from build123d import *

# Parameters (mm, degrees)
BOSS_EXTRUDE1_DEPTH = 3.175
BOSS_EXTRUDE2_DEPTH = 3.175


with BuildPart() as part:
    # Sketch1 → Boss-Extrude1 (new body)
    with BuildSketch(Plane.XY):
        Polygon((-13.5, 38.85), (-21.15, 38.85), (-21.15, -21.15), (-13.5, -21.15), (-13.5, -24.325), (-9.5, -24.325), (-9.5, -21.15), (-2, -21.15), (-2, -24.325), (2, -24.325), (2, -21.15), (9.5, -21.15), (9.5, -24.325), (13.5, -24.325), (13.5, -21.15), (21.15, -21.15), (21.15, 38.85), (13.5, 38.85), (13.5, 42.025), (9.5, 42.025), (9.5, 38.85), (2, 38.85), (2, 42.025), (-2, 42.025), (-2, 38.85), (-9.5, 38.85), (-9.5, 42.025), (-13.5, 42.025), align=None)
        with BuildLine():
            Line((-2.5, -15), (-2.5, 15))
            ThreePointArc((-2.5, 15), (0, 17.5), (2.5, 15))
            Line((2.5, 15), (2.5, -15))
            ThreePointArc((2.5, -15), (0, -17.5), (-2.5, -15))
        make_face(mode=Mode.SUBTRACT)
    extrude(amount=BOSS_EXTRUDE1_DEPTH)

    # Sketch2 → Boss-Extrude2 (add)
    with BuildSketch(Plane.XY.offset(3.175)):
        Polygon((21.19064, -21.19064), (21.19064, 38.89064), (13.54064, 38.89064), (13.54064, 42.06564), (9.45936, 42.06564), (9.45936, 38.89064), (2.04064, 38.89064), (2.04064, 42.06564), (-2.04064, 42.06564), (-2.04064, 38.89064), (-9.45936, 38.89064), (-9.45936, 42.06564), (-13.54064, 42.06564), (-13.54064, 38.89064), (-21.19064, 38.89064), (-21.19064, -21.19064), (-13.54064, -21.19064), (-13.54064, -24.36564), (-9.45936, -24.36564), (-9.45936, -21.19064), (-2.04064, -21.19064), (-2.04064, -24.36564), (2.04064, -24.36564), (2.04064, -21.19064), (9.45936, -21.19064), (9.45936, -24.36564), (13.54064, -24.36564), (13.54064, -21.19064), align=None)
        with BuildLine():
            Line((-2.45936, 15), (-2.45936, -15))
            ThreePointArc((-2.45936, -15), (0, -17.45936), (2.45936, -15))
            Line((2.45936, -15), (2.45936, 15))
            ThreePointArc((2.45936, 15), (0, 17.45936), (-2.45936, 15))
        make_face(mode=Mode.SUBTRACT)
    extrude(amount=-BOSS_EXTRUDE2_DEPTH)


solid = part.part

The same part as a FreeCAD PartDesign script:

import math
import FreeCAD as App
import Part
import Sketcher

V = App.Vector

doc = App.newDocument("Part")
body = doc.addObject("PartDesign::Body", "Body")

# Sketch on XY plane
sketch1 = body.newObject("Sketcher::SketchObject", "Sketch")
sketch1.AttachmentSupport = (doc.getObject("XY_Plane"), [""])
sketch1.MapMode = "FlatFace"
sketch1.addGeometry(Part.LineSegment(V(-13.5, 38.85, 0), V(-21.15, 38.85, 0)), False)
sketch1.addGeometry(Part.LineSegment(V(-21.15, 38.85, 0), V(-21.15, -21.15, 0)), False)
sketch1.addGeometry(Part.LineSegment(V(-21.15, -21.15, 0), V(-13.5, -21.15, 0)), False)
sketch1.addGeometry(Part.LineSegment(V(-13.5, -21.15, 0), V(-13.5, -24.325, 0)), False)
sketch1.addGeometry(Part.LineSegment(V(-13.5, -24.325, 0), V(-9.5, -24.325, 0)), False)
sketch1.addGeometry(Part.LineSegment(V(-9.5, -24.325, 0), V(-9.5, -21.15, 0)), False)
sketch1.addGeometry(Part.LineSegment(V(-9.5, -21.15, 0), V(-2, -21.15, 0)), False)
sketch1.addGeometry(Part.LineSegment(V(-2, -21.15, 0), V(-2, -24.325, 0)), False)
sketch1.addGeometry(Part.LineSegment(V(-2, -24.325, 0), V(2, -24.325, 0)), False)
sketch1.addGeometry(Part.LineSegment(V(2, -24.325, 0), V(2, -21.15, 0)), False)
sketch1.addGeometry(Part.LineSegment(V(2, -21.15, 0), V(9.5, -21.15, 0)), False)
sketch1.addGeometry(Part.LineSegment(V(9.5, -21.15, 0), V(9.5, -24.325, 0)), False)
sketch1.addGeometry(Part.LineSegment(V(9.5, -24.325, 0), V(13.5, -24.325, 0)), False)
sketch1.addGeometry(Part.LineSegment(V(13.5, -24.325, 0), V(13.5, -21.15, 0)), False)
sketch1.addGeometry(Part.LineSegment(V(13.5, -21.15, 0), V(21.15, -21.15, 0)), False)
sketch1.addGeometry(Part.LineSegment(V(21.15, -21.15, 0), V(21.15, 38.85, 0)), False)
sketch1.addGeometry(Part.LineSegment(V(21.15, 38.85, 0), V(13.5, 38.85, 0)), False)
sketch1.addGeometry(Part.LineSegment(V(13.5, 38.85, 0), V(13.5, 42.025, 0)), False)
sketch1.addGeometry(Part.LineSegment(V(13.5, 42.025, 0), V(9.5, 42.025, 0)), False)
sketch1.addGeometry(Part.LineSegment(V(9.5, 42.025, 0), V(9.5, 38.85, 0)), False)
sketch1.addGeometry(Part.LineSegment(V(9.5, 38.85, 0), V(2, 38.85, 0)), False)
sketch1.addGeometry(Part.LineSegment(V(2, 38.85, 0), V(2, 42.025, 0)), False)
sketch1.addGeometry(Part.LineSegment(V(2, 42.025, 0), V(-2, 42.025, 0)), False)
sketch1.addGeometry(Part.LineSegment(V(-2, 42.025, 0), V(-2, 38.85, 0)), False)
sketch1.addGeometry(Part.LineSegment(V(-2, 38.85, 0), V(-9.5, 38.85, 0)), False)
sketch1.addGeometry(Part.LineSegment(V(-9.5, 38.85, 0), V(-9.5, 42.025, 0)), False)
sketch1.addGeometry(Part.LineSegment(V(-9.5, 42.025, 0), V(-13.5, 42.025, 0)), False)
sketch1.addGeometry(Part.LineSegment(V(-13.5, 42.025, 0), V(-13.5, 38.85, 0)), False)
sketch1.addGeometry(Part.ArcOfCircle(Part.Circle(V(0, -15, 0), V(0, 0, 1), 2.5), math.radians(180), math.radians(360)), False)
sketch1.addGeometry(Part.LineSegment(V(-2.5, -15, 0), V(-2.5, 15, 0)), False)
sketch1.addGeometry(Part.ArcOfCircle(Part.Circle(V(0, 15, 0), V(0, 0, 1), 2.5), math.radians(0), math.radians(180)), False)
sketch1.addGeometry(Part.LineSegment(V(2.5, 15, 0), V(2.5, -15, 0)), False)
sketch1.addConstraint(Sketcher.Constraint("Coincident", 0, 2, 1, 1))
sketch1.addConstraint(Sketcher.Constraint("Coincident", 1, 2, 2, 1))
sketch1.addConstraint(Sketcher.Constraint("Coincident", 2, 2, 3, 1))
sketch1.addConstraint(Sketcher.Constraint("Coincident", 3, 2, 4, 1))
sketch1.addConstraint(Sketcher.Constraint("Coincident", 4, 2, 5, 1))
sketch1.addConstraint(Sketcher.Constraint("Coincident", 5, 2, 6, 1))
sketch1.addConstraint(Sketcher.Constraint("Coincident", 6, 2, 7, 1))
sketch1.addConstraint(Sketcher.Constraint("Coincident", 7, 2, 8, 1))
sketch1.addConstraint(Sketcher.Constraint("Coincident", 8, 2, 9, 1))
sketch1.addConstraint(Sketcher.Constraint("Coincident", 9, 2, 10, 1))
sketch1.addConstraint(Sketcher.Constraint("Coincident", 10, 2, 11, 1))
sketch1.addConstraint(Sketcher.Constraint("Coincident", 11, 2, 12, 1))
sketch1.addConstraint(Sketcher.Constraint("Coincident", 12, 2, 13, 1))
sketch1.addConstraint(Sketcher.Constraint("Coincident", 13, 2, 14, 1))
sketch1.addConstraint(Sketcher.Constraint("Coincident", 14, 2, 15, 1))
sketch1.addConstraint(Sketcher.Constraint("Coincident", 15, 2, 16, 1))
sketch1.addConstraint(Sketcher.Constraint("Coincident", 16, 2, 17, 1))
sketch1.addConstraint(Sketcher.Constraint("Coincident", 17, 2, 18, 1))
sketch1.addConstraint(Sketcher.Constraint("Coincident", 18, 2, 19, 1))
sketch1.addConstraint(Sketcher.Constraint("Coincident", 19, 2, 20, 1))
sketch1.addConstraint(Sketcher.Constraint("Coincident", 20, 2, 21, 1))
sketch1.addConstraint(Sketcher.Constraint("Coincident", 21, 2, 22, 1))
sketch1.addConstraint(Sketcher.Constraint("Coincident", 22, 2, 23, 1))
sketch1.addConstraint(Sketcher.Constraint("Coincident", 23, 2, 24, 1))
sketch1.addConstraint(Sketcher.Constraint("Coincident", 24, 2, 25, 1))
sketch1.addConstraint(Sketcher.Constraint("Coincident", 25, 2, 26, 1))
sketch1.addConstraint(Sketcher.Constraint("Coincident", 26, 2, 27, 1))
sketch1.addConstraint(Sketcher.Constraint("Coincident", 27, 2, 0, 1))
sketch1.addConstraint(Sketcher.Constraint("Tangent", 28, 1, 29, 1))
sketch1.addConstraint(Sketcher.Constraint("Tangent", 29, 2, 30, 2))
sketch1.addConstraint(Sketcher.Constraint("Tangent", 30, 1, 31, 1))
sketch1.addConstraint(Sketcher.Constraint("Tangent", 31, 2, 28, 2))
sketch1.addConstraint(Sketcher.Constraint("Horizontal", 0))
sketch1.addConstraint(Sketcher.Constraint("Vertical", 1))
sketch1.addConstraint(Sketcher.Constraint("Horizontal", 2))
sketch1.addConstraint(Sketcher.Constraint("Vertical", 3))
sketch1.addConstraint(Sketcher.Constraint("Horizontal", 4))
sketch1.addConstraint(Sketcher.Constraint("Vertical", 5))
sketch1.addConstraint(Sketcher.Constraint("Horizontal", 6))
sketch1.addConstraint(Sketcher.Constraint("Vertical", 7))
sketch1.addConstraint(Sketcher.Constraint("Horizontal", 8))
sketch1.addConstraint(Sketcher.Constraint("Vertical", 9))
sketch1.addConstraint(Sketcher.Constraint("Horizontal", 10))
sketch1.addConstraint(Sketcher.Constraint("Vertical", 11))
sketch1.addConstraint(Sketcher.Constraint("Horizontal", 12))
sketch1.addConstraint(Sketcher.Constraint("Vertical", 13))
sketch1.addConstraint(Sketcher.Constraint("Horizontal", 14))
sketch1.addConstraint(Sketcher.Constraint("Vertical", 15))
sketch1.addConstraint(Sketcher.Constraint("Horizontal", 16))
sketch1.addConstraint(Sketcher.Constraint("Vertical", 17))
sketch1.addConstraint(Sketcher.Constraint("Horizontal", 18))
sketch1.addConstraint(Sketcher.Constraint("Vertical", 19))
sketch1.addConstraint(Sketcher.Constraint("Horizontal", 20))
sketch1.addConstraint(Sketcher.Constraint("Vertical", 21))
sketch1.addConstraint(Sketcher.Constraint("Horizontal", 22))
sketch1.addConstraint(Sketcher.Constraint("Vertical", 23))
sketch1.addConstraint(Sketcher.Constraint("Horizontal", 24))
sketch1.addConstraint(Sketcher.Constraint("Vertical", 25))
sketch1.addConstraint(Sketcher.Constraint("Horizontal", 26))
sketch1.addConstraint(Sketcher.Constraint("Vertical", 27))
sketch1.addConstraint(Sketcher.Constraint("Vertical", 29))
sketch1.addConstraint(Sketcher.Constraint("Vertical", 31))
sketch1.addConstraint(Sketcher.Constraint("Symmetric", 28, 3, 30, 3, -1, 1))
sketch1.addConstraint(Sketcher.Constraint("Symmetric", 6, 2, 9, 2, -2))
sketch1.addConstraint(Sketcher.Constraint("Symmetric", 4, 2, 11, 2, -2))
sketch1.addConstraint(Sketcher.Constraint("Symmetric", 2, 2, 13, 2, -2))
sketch1.addConstraint(Sketcher.Constraint("Symmetric", 0, 2, 15, 2, -2))
sketch1.addConstraint(Sketcher.Constraint("Symmetric", 20, 2, 23, 2, -2))
sketch1.addConstraint(Sketcher.Constraint("Symmetric", 18, 2, 25, 2, -2))
sketch1.addConstraint(Sketcher.Constraint("Horizontal", 2, 2, 5, 2))
sketch1.addConstraint(Sketcher.Constraint("Horizontal", 4, 2, 7, 2))
sketch1.addConstraint(Sketcher.Constraint("Horizontal", 16, 2, 19, 2))
sketch1.addConstraint(Sketcher.Constraint("Horizontal", 18, 2, 21, 2))
sketch1.addConstraint(Sketcher.Constraint("Vertical", 13, 2, 16, 2))
sketch1.addConstraint(Sketcher.Constraint("Vertical", 11, 2, 18, 2))
sketch1.addConstraint(Sketcher.Constraint("Vertical", 9, 2, 20, 2))
sketch1.addConstraint(Sketcher.Constraint("Vertical", 3, 2, 26, 2))
sketch1.addConstraint(Sketcher.Constraint("Equal", 4, 8))
sketch1.addConstraint(Sketcher.Constraint("Equal", 13, 17))
sketch1.addConstraint(Sketcher.Constraint("Radius", 28, 2.5))
sketch1.addConstraint(Sketcher.Constraint("DistanceX", 4, 1, 4, 2, 4.0))
sketch1.addConstraint(Sketcher.Constraint("DistanceY", 1, 2, 1, 1, 60.0))
sketch1.addConstraint(Sketcher.Constraint("DistanceY", 29, 1, 29, 2, 30.0))
sketch1.addConstraint(Sketcher.Constraint("DistanceX", 6, 1, 6, 2, 7.5))
sketch1.addConstraint(Sketcher.Constraint("DistanceX", 0, 2, 0, 1, 7.65))
sketch1.addConstraint(Sketcher.Constraint("DistanceY", 3, 2, 3, 1, 3.175))
sketch1.addConstraint(Sketcher.Constraint("DistanceY", -1, 1, 0, 2, 38.85))
pad1 = body.newObject("PartDesign::Pad", "Pad")
pad1.Profile = sketch1
pad1.Length = 3.175

# Sketch on XY plane
sketch2 = body.newObject("Sketcher::SketchObject", "Sketch001")
sketch2.AttachmentSupport = (doc.getObject("XY_Plane"), [""])
sketch2.MapMode = "FlatFace"
sketch2.AttachmentOffset = App.Placement(V(0, 0, 3.175), App.Rotation())
sketch2.addGeometry(Part.LineSegment(V(21.19064, -21.19064, 0), V(21.19064, 38.89064, 0)), False)
sketch2.addGeometry(Part.LineSegment(V(21.19064, 38.89064, 0), V(13.54064, 38.89064, 0)), False)
sketch2.addGeometry(Part.LineSegment(V(13.54064, 38.89064, 0), V(13.54064, 42.06564, 0)), False)
sketch2.addGeometry(Part.LineSegment(V(13.54064, 42.06564, 0), V(9.45936, 42.06564, 0)), False)
sketch2.addGeometry(Part.LineSegment(V(9.45936, 42.06564, 0), V(9.45936, 38.89064, 0)), False)
sketch2.addGeometry(Part.LineSegment(V(9.45936, 38.89064, 0), V(2.04064, 38.89064, 0)), False)
sketch2.addGeometry(Part.LineSegment(V(2.04064, 38.89064, 0), V(2.04064, 42.06564, 0)), False)
sketch2.addGeometry(Part.LineSegment(V(2.04064, 42.06564, 0), V(-2.04064, 42.06564, 0)), False)
sketch2.addGeometry(Part.LineSegment(V(-2.04064, 42.06564, 0), V(-2.04064, 38.89064, 0)), False)
sketch2.addGeometry(Part.LineSegment(V(-2.04064, 38.89064, 0), V(-9.45936, 38.89064, 0)), False)
sketch2.addGeometry(Part.LineSegment(V(-9.45936, 38.89064, 0), V(-9.45936, 42.06564, 0)), False)
sketch2.addGeometry(Part.LineSegment(V(-9.45936, 42.06564, 0), V(-13.54064, 42.06564, 0)), False)
sketch2.addGeometry(Part.LineSegment(V(-13.54064, 42.06564, 0), V(-13.54064, 38.89064, 0)), False)
sketch2.addGeometry(Part.LineSegment(V(-13.54064, 38.89064, 0), V(-21.19064, 38.89064, 0)), False)
sketch2.addGeometry(Part.LineSegment(V(-21.19064, 38.89064, 0), V(-21.19064, -21.19064, 0)), False)
sketch2.addGeometry(Part.LineSegment(V(-21.19064, -21.19064, 0), V(-13.54064, -21.19064, 0)), False)
sketch2.addGeometry(Part.LineSegment(V(-13.54064, -21.19064, 0), V(-13.54064, -24.36564, 0)), False)
sketch2.addGeometry(Part.LineSegment(V(-13.54064, -24.36564, 0), V(-9.45936, -24.36564, 0)), False)
sketch2.addGeometry(Part.LineSegment(V(-9.45936, -24.36564, 0), V(-9.45936, -21.19064, 0)), False)
sketch2.addGeometry(Part.LineSegment(V(-9.45936, -21.19064, 0), V(-2.04064, -21.19064, 0)), False)
sketch2.addGeometry(Part.LineSegment(V(-2.04064, -21.19064, 0), V(-2.04064, -24.36564, 0)), False)
sketch2.addGeometry(Part.LineSegment(V(-2.04064, -24.36564, 0), V(2.04064, -24.36564, 0)), False)
sketch2.addGeometry(Part.LineSegment(V(2.04064, -24.36564, 0), V(2.04064, -21.19064, 0)), False)
sketch2.addGeometry(Part.LineSegment(V(2.04064, -21.19064, 0), V(9.45936, -21.19064, 0)), False)
sketch2.addGeometry(Part.LineSegment(V(9.45936, -21.19064, 0), V(9.45936, -24.36564, 0)), False)
sketch2.addGeometry(Part.LineSegment(V(9.45936, -24.36564, 0), V(13.54064, -24.36564, 0)), False)
sketch2.addGeometry(Part.LineSegment(V(13.54064, -24.36564, 0), V(13.54064, -21.19064, 0)), False)
sketch2.addGeometry(Part.LineSegment(V(13.54064, -21.19064, 0), V(21.19064, -21.19064, 0)), False)
sketch2.addGeometry(Part.LineSegment(V(-2.45936, -15, 0), V(-2.45936, 15, 0)), False)
sketch2.addGeometry(Part.ArcOfCircle(Part.Circle(V(0, 15, 0), V(0, 0, 1), 2.45936), math.radians(0), math.radians(180)), False)
sketch2.addGeometry(Part.LineSegment(V(2.45936, 15, 0), V(2.45936, -15, 0)), False)
sketch2.addGeometry(Part.ArcOfCircle(Part.Circle(V(0, -15, 0), V(0, 0, 1), 2.45936), math.radians(180), math.radians(360)), False)
sketch2.addConstraint(Sketcher.Constraint("Coincident", 0, 2, 1, 1))
sketch2.addConstraint(Sketcher.Constraint("Coincident", 1, 2, 2, 1))
sketch2.addConstraint(Sketcher.Constraint("Coincident", 2, 2, 3, 1))
sketch2.addConstraint(Sketcher.Constraint("Coincident", 3, 2, 4, 1))
sketch2.addConstraint(Sketcher.Constraint("Coincident", 4, 2, 5, 1))
sketch2.addConstraint(Sketcher.Constraint("Coincident", 5, 2, 6, 1))
sketch2.addConstraint(Sketcher.Constraint("Coincident", 6, 2, 7, 1))
sketch2.addConstraint(Sketcher.Constraint("Coincident", 7, 2, 8, 1))
sketch2.addConstraint(Sketcher.Constraint("Coincident", 8, 2, 9, 1))
sketch2.addConstraint(Sketcher.Constraint("Coincident", 9, 2, 10, 1))
sketch2.addConstraint(Sketcher.Constraint("Coincident", 10, 2, 11, 1))
sketch2.addConstraint(Sketcher.Constraint("Coincident", 11, 2, 12, 1))
sketch2.addConstraint(Sketcher.Constraint("Coincident", 12, 2, 13, 1))
sketch2.addConstraint(Sketcher.Constraint("Coincident", 13, 2, 14, 1))
sketch2.addConstraint(Sketcher.Constraint("Coincident", 14, 2, 15, 1))
sketch2.addConstraint(Sketcher.Constraint("Coincident", 15, 2, 16, 1))
sketch2.addConstraint(Sketcher.Constraint("Coincident", 16, 2, 17, 1))
sketch2.addConstraint(Sketcher.Constraint("Coincident", 17, 2, 18, 1))
sketch2.addConstraint(Sketcher.Constraint("Coincident", 18, 2, 19, 1))
sketch2.addConstraint(Sketcher.Constraint("Coincident", 19, 2, 20, 1))
sketch2.addConstraint(Sketcher.Constraint("Coincident", 20, 2, 21, 1))
sketch2.addConstraint(Sketcher.Constraint("Coincident", 21, 2, 22, 1))
sketch2.addConstraint(Sketcher.Constraint("Coincident", 22, 2, 23, 1))
sketch2.addConstraint(Sketcher.Constraint("Coincident", 23, 2, 24, 1))
sketch2.addConstraint(Sketcher.Constraint("Coincident", 24, 2, 25, 1))
sketch2.addConstraint(Sketcher.Constraint("Coincident", 25, 2, 26, 1))
sketch2.addConstraint(Sketcher.Constraint("Coincident", 26, 2, 27, 1))
sketch2.addConstraint(Sketcher.Constraint("Coincident", 27, 2, 0, 1))
sketch2.addConstraint(Sketcher.Constraint("Tangent", 28, 2, 29, 2))
sketch2.addConstraint(Sketcher.Constraint("Tangent", 29, 1, 30, 1))
sketch2.addConstraint(Sketcher.Constraint("Tangent", 30, 2, 31, 2))
sketch2.addConstraint(Sketcher.Constraint("Tangent", 31, 1, 28, 1))
sketch2.addConstraint(Sketcher.Constraint("Vertical", 0))
sketch2.addConstraint(Sketcher.Constraint("Horizontal", 1))
sketch2.addConstraint(Sketcher.Constraint("Vertical", 2))
sketch2.addConstraint(Sketcher.Constraint("Horizontal", 3))
sketch2.addConstraint(Sketcher.Constraint("Vertical", 4))
sketch2.addConstraint(Sketcher.Constraint("Horizontal", 5))
sketch2.addConstraint(Sketcher.Constraint("Vertical", 6))
sketch2.addConstraint(Sketcher.Constraint("Horizontal", 7))
sketch2.addConstraint(Sketcher.Constraint("Vertical", 8))
sketch2.addConstraint(Sketcher.Constraint("Horizontal", 9))
sketch2.addConstraint(Sketcher.Constraint("Vertical", 10))
sketch2.addConstraint(Sketcher.Constraint("Horizontal", 11))
sketch2.addConstraint(Sketcher.Constraint("Vertical", 12))
sketch2.addConstraint(Sketcher.Constraint("Horizontal", 13))
sketch2.addConstraint(Sketcher.Constraint("Vertical", 14))
sketch2.addConstraint(Sketcher.Constraint("Horizontal", 15))
sketch2.addConstraint(Sketcher.Constraint("Vertical", 16))
sketch2.addConstraint(Sketcher.Constraint("Horizontal", 17))
sketch2.addConstraint(Sketcher.Constraint("Vertical", 18))
sketch2.addConstraint(Sketcher.Constraint("Horizontal", 19))
sketch2.addConstraint(Sketcher.Constraint("Vertical", 20))
sketch2.addConstraint(Sketcher.Constraint("Horizontal", 21))
sketch2.addConstraint(Sketcher.Constraint("Vertical", 22))
sketch2.addConstraint(Sketcher.Constraint("Horizontal", 23))
sketch2.addConstraint(Sketcher.Constraint("Vertical", 24))
sketch2.addConstraint(Sketcher.Constraint("Horizontal", 25))
sketch2.addConstraint(Sketcher.Constraint("Vertical", 26))
sketch2.addConstraint(Sketcher.Constraint("Horizontal", 27))
sketch2.addConstraint(Sketcher.Constraint("Vertical", 28))
sketch2.addConstraint(Sketcher.Constraint("Vertical", 30))
sketch2.addConstraint(Sketcher.Constraint("Symmetric", 29, 3, 31, 3, -1, 1))
sketch2.addConstraint(Sketcher.Constraint("Symmetric", 5, 2, 8, 2, -2))
sketch2.addConstraint(Sketcher.Constraint("Symmetric", 3, 2, 10, 2, -2))
sketch2.addConstraint(Sketcher.Constraint("Symmetric", 1, 2, 12, 2, -2))
sketch2.addConstraint(Sketcher.Constraint("Symmetric", 19, 2, 22, 2, -2))
sketch2.addConstraint(Sketcher.Constraint("Symmetric", 17, 2, 24, 2, -2))
sketch2.addConstraint(Sketcher.Constraint("Symmetric", 15, 2, 26, 2, -2))
sketch2.addConstraint(Sketcher.Constraint("Horizontal", 1, 2, 4, 2))
sketch2.addConstraint(Sketcher.Constraint("Horizontal", 3, 2, 6, 2))
sketch2.addConstraint(Sketcher.Constraint("Horizontal", 15, 2, 18, 2))
sketch2.addConstraint(Sketcher.Constraint("Horizontal", 17, 2, 20, 2))
sketch2.addConstraint(Sketcher.Constraint("Vertical", 12, 2, 15, 2))
sketch2.addConstraint(Sketcher.Constraint("Vertical", 10, 2, 17, 2))
sketch2.addConstraint(Sketcher.Constraint("Vertical", 8, 2, 19, 2))
sketch2.addConstraint(Sketcher.Constraint("Equal", 3, 7))
sketch2.addConstraint(Sketcher.Constraint("Equal", 1, 13))
sketch2.addConstraint(Sketcher.Constraint("Equal", 12, 16))
sketch2.addConstraint(Sketcher.Constraint("DistanceY", 28, 1, 28, 2, 30.0))
sketch2.addConstraint(Sketcher.Constraint("DistanceX", 9, 2, 28, 2, 7.0))
sketch2.addConstraint(Sketcher.Constraint("DistanceX", 1, 2, 1, 1, 7.65))
sketch2.addConstraint(Sketcher.Constraint("DistanceX", 5, 2, 1, 2, 11.5))
sketch2.addConstraint(Sketcher.Constraint("DistanceY", 2, 1, 2, 2, 3.175))
sketch2.addConstraint(Sketcher.Constraint("Radius", 29, 2.45936))
sketch2.addConstraint(Sketcher.Constraint("DistanceY", 0, 1, 0, 2, 60.08128))
sketch2.addConstraint(Sketcher.Constraint("DistanceY", -1, 1, 0, 2, 38.89064))
pad2 = body.newObject("PartDesign::Pad", "Pad001")
pad2.Profile = sketch2
pad2.Length = 3.175
pad2.Reversed = True

doc.recompute()
